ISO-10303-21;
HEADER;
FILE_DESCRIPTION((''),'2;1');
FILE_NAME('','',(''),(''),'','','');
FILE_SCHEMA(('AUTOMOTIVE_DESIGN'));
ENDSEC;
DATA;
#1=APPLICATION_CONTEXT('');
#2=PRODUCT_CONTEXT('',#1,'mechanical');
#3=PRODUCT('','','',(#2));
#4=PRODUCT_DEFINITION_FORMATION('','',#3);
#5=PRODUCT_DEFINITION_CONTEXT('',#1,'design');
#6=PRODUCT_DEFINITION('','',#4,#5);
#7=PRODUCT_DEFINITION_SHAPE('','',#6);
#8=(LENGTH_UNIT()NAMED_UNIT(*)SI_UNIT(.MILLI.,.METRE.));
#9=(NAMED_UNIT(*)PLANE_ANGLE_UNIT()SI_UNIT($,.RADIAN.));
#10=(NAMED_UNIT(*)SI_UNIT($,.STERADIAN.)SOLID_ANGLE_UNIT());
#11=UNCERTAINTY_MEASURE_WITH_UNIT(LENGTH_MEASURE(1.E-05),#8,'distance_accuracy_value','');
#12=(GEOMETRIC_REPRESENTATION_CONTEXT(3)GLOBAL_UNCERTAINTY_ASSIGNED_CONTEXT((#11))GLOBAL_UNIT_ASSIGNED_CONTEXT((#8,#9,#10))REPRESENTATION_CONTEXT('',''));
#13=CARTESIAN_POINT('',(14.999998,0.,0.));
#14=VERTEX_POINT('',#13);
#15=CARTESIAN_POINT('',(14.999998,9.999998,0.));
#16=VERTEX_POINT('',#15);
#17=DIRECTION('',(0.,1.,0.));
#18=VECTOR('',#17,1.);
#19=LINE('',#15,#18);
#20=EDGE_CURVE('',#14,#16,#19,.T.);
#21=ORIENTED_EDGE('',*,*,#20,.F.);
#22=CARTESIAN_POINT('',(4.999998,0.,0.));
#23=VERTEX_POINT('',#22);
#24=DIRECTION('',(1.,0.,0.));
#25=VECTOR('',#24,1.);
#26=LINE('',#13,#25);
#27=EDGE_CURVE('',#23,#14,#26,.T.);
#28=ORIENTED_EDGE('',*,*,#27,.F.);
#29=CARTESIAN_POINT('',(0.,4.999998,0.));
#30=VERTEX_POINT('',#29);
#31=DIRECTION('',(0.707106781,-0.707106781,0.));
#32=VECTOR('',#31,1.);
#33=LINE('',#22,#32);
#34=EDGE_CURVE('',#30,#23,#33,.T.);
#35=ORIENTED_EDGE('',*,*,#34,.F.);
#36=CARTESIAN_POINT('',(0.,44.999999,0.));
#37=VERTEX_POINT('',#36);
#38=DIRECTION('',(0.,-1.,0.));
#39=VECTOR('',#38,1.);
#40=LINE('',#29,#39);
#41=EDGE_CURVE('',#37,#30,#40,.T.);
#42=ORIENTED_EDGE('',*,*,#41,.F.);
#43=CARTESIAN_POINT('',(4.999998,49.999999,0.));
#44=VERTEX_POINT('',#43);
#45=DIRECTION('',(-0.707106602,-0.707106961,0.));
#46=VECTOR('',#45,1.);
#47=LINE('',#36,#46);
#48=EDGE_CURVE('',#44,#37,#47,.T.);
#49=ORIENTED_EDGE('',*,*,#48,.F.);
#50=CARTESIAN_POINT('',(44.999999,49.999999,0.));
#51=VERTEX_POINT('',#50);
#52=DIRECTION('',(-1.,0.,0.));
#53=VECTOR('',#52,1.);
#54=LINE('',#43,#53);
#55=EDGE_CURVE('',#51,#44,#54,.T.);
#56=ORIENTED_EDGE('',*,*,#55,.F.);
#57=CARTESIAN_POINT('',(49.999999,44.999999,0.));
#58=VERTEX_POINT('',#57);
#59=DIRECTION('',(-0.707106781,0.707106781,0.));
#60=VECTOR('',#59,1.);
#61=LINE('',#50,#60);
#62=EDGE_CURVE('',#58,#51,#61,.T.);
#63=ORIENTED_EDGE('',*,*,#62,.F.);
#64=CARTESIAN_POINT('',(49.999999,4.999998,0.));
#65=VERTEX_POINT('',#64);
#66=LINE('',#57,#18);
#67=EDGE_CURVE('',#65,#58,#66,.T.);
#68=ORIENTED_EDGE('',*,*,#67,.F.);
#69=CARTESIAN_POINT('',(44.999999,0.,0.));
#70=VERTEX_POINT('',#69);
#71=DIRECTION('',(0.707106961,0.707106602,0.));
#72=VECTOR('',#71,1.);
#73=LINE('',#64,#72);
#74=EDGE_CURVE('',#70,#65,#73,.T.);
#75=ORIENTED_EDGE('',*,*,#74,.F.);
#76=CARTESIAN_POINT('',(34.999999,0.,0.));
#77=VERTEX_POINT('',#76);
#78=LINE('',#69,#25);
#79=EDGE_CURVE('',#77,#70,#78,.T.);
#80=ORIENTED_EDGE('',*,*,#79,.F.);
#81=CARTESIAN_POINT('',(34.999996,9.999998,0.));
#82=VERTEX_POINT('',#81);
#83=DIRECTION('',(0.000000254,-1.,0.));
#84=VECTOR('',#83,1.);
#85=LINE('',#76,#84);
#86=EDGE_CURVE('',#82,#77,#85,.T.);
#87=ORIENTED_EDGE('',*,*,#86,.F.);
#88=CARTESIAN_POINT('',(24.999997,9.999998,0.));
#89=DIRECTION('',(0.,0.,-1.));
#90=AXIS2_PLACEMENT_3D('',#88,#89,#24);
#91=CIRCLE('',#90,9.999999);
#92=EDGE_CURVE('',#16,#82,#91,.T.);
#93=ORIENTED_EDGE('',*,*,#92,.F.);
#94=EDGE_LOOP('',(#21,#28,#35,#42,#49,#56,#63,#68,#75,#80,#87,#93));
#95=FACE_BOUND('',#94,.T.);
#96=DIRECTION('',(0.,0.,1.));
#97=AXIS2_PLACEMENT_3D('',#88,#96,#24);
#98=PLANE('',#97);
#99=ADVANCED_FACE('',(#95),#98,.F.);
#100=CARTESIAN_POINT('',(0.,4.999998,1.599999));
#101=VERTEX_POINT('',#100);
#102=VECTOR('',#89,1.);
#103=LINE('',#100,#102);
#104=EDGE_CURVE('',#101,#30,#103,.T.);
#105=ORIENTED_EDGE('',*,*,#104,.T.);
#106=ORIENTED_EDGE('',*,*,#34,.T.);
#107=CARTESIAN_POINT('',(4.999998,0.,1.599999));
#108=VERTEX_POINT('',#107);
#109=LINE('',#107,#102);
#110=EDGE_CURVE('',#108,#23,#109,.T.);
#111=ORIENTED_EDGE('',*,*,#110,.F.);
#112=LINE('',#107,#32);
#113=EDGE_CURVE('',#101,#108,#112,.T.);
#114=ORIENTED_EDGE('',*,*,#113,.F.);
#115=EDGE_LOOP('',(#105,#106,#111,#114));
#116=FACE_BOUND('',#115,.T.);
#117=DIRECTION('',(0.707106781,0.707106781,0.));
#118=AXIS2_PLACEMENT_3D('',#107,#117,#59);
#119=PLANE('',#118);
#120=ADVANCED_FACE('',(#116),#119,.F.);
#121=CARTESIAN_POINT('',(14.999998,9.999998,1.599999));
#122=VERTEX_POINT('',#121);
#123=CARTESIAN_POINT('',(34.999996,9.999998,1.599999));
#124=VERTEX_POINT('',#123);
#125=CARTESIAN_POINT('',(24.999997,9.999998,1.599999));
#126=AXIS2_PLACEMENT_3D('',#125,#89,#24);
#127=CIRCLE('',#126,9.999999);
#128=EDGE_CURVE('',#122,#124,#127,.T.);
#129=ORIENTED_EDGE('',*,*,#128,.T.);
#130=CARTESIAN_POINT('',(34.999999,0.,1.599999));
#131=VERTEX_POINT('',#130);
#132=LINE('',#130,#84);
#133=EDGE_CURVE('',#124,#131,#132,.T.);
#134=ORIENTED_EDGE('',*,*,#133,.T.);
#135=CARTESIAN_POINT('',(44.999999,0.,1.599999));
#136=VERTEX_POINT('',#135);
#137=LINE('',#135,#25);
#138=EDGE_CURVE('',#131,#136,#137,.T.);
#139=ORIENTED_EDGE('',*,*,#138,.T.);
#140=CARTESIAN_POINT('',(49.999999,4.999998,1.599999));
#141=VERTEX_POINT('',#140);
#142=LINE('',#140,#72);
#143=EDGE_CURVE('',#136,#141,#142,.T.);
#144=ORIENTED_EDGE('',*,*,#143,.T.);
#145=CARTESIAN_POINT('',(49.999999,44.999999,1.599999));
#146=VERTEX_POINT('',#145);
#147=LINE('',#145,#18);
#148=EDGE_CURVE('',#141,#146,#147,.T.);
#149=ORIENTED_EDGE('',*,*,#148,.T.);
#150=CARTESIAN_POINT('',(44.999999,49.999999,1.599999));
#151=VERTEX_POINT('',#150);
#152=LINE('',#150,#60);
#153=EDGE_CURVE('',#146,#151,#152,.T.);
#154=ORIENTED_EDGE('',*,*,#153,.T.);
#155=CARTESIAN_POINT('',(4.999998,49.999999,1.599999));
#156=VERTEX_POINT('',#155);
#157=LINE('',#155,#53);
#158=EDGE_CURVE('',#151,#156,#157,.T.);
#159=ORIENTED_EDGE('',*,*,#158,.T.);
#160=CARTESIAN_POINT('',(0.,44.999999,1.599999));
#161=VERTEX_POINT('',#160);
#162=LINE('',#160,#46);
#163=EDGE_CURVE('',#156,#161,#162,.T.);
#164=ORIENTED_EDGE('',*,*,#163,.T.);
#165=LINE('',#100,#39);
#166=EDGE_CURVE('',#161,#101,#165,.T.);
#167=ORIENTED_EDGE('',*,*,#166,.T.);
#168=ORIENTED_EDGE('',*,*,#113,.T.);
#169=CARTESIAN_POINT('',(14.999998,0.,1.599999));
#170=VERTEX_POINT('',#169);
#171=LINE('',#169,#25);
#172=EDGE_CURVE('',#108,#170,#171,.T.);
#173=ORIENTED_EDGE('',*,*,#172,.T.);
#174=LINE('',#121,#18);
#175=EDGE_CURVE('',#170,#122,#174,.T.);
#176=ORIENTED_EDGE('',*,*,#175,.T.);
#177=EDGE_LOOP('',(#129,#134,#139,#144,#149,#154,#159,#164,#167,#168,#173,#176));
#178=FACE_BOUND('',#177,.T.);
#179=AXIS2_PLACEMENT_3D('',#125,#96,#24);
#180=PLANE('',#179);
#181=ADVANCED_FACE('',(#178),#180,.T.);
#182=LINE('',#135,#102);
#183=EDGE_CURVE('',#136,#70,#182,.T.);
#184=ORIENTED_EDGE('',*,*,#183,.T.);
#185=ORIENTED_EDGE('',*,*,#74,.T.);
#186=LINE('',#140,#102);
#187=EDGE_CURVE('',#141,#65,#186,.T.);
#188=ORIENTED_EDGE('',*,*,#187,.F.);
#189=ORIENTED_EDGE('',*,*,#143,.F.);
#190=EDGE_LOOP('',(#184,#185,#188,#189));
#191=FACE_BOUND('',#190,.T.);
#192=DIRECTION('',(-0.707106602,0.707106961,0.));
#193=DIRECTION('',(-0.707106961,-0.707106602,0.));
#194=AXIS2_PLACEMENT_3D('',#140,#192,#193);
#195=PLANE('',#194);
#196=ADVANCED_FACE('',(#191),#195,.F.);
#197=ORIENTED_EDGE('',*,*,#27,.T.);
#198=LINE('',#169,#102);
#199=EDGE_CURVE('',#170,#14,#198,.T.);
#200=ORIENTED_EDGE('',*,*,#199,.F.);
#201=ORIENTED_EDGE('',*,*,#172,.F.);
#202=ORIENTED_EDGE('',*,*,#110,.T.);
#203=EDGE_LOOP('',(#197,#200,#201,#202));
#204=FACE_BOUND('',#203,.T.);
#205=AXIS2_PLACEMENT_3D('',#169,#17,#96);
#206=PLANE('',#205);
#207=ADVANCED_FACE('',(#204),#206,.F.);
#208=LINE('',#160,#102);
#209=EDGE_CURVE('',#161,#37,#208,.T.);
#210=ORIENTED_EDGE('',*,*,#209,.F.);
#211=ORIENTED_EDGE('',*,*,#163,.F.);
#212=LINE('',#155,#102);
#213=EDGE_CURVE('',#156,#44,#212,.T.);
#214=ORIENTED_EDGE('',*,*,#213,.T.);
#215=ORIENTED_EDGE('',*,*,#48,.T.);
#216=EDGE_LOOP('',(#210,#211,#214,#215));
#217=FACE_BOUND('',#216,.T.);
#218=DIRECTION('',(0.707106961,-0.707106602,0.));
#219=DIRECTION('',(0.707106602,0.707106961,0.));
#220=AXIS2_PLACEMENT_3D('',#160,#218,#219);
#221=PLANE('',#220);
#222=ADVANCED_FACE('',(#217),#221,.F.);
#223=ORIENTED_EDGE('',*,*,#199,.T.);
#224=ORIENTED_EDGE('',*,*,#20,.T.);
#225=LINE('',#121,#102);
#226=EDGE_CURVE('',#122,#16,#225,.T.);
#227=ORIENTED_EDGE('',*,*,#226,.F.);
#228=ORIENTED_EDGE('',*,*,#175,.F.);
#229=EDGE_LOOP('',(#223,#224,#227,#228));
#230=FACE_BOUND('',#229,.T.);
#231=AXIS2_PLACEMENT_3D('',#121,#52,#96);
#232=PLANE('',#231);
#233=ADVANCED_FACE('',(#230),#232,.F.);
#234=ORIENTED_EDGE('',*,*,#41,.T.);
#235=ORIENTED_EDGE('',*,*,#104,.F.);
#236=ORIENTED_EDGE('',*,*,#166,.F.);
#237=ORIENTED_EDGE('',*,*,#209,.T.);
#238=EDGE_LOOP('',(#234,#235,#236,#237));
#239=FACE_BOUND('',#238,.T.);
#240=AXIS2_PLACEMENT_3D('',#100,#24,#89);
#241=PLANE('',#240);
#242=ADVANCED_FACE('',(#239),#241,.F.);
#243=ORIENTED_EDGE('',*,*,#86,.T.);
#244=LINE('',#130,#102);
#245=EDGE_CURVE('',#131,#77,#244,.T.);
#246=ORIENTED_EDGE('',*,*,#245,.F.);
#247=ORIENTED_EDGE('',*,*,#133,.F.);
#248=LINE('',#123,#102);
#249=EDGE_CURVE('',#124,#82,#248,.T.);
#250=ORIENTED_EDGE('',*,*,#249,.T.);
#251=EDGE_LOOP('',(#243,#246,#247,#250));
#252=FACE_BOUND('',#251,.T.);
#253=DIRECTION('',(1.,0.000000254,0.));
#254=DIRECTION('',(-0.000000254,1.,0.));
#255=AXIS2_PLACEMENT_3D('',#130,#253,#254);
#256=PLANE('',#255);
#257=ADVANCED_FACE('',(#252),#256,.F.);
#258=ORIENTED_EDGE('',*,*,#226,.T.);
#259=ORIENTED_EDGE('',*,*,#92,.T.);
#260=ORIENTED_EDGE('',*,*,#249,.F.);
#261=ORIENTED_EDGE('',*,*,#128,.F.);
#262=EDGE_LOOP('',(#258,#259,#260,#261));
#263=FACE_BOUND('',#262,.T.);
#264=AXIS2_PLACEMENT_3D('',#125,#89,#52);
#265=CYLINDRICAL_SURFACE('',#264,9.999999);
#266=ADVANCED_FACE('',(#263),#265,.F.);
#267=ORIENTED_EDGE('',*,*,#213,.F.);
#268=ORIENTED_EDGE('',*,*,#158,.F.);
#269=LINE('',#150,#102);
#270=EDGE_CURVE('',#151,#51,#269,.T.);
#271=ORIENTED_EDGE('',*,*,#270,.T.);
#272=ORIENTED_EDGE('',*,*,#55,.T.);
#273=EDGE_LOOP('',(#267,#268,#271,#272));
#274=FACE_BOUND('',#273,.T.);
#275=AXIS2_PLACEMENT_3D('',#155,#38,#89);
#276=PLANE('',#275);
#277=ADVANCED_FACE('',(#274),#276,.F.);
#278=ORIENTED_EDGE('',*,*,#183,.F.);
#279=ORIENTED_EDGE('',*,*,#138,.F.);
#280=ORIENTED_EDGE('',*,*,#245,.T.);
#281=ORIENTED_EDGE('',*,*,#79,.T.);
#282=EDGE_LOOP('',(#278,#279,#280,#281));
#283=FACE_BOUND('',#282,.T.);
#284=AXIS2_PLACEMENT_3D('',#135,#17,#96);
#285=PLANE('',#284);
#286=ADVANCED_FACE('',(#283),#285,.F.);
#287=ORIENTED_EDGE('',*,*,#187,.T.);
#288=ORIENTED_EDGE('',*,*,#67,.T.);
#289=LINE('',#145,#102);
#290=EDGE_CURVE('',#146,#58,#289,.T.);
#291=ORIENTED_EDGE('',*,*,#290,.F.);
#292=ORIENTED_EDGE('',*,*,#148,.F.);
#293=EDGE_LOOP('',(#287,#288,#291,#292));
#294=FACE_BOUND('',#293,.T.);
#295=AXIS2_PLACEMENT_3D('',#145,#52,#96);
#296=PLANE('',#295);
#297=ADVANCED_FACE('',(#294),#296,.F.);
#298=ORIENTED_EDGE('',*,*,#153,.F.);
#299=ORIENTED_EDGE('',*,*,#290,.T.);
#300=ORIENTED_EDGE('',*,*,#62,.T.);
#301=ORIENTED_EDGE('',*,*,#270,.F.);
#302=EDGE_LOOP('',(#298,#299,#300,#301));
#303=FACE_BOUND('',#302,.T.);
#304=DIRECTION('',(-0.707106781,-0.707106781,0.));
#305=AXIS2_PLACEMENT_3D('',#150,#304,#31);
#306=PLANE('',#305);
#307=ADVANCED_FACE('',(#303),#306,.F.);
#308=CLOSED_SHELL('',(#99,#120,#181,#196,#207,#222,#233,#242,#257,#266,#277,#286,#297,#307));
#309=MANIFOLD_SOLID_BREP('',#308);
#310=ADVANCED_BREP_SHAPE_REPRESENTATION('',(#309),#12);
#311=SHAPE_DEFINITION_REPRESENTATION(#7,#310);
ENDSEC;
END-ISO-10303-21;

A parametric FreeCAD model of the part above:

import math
import FreeCAD as App
import Part
import Sketcher

doc = App.newDocument("Part")
body = doc.addObject("PartDesign::Body", "Body")

# Sketch on XY plane
sketch1 = body.newObject("Sketcher::SketchObject", "Sketch")
sketch1.AttachmentSupport = (doc.getObject("XY_Plane"), [""])
sketch1.MapMode = "FlatFace"
sketch1.addGeometry(Part.LineSegment(App.Vector(15, 0, 0), App.Vector(15, 10, 0)), False)
sketch1.addGeometry(Part.ArcOfCircle(Part.Circle(App.Vector(25, 10, 0), App.Vector(0, 0, 1), 10), math.radians(0), math.radians(180)), False)
sketch1.addGeometry(Part.LineSegment(App.Vector(35, 10, 0), App.Vector(35, 0, 0)), False)
sketch1.addGeometry(Part.LineSegment(App.Vector(35, 0, 0), App.Vector(45, 0, 0)), False)
sketch1.addGeometry(Part.LineSegment(App.Vector(45, 0, 0), App.Vector(50, 5, 0)), False)
sketch1.addGeometry(Part.LineSegment(App.Vector(50, 5, 0), App.Vector(50, 45, 0)), False)
sketch1.addGeometry(Part.LineSegment(App.Vector(50, 45, 0), App.Vector(45, 50, 0)), False)
sketch1.addGeometry(Part.LineSegment(App.Vector(45, 50, 0), App.Vector(5, 50, 0)), False)
sketch1.addGeometry(Part.LineSegment(App.Vector(5, 50, 0), App.Vector(0, 45, 0)), False)
sketch1.addGeometry(Part.LineSegment(App.Vector(0, 45, 0), App.Vector(0, 5, 0)), False)
sketch1.addGeometry(Part.LineSegment(App.Vector(0, 5, 0), App.Vector(5, 0, 0)), False)
sketch1.addGeometry(Part.LineSegment(App.Vector(5, 0, 0), App.Vector(15, 0, 0)), False)
sketch1.addConstraint(Sketcher.Constraint("Tangent", 0, 2, 1, 2))
sketch1.addConstraint(Sketcher.Constraint("Tangent", 1, 1, 2, 1))
sketch1.addConstraint(Sketcher.Constraint("Coincident", 2, 2, 3, 1))
sketch1.addConstraint(Sketcher.Constraint("Coincident", 3, 2, 4, 1))
sketch1.addConstraint(Sketcher.Constraint("Coincident", 4, 2, 5, 1))
sketch1.addConstraint(Sketcher.Constraint("Coincident", 5, 2, 6, 1))
sketch1.addConstraint(Sketcher.Constraint("Coincident", 6, 2, 7, 1))
sketch1.addConstraint(Sketcher.Constraint("Coincident", 7, 2, 8, 1))
sketch1.addConstraint(Sketcher.Constraint("Coincident", 8, 2, 9, 1))
sketch1.addConstraint(Sketcher.Constraint("Coincident", 9, 2, 10, 1))
sketch1.addConstraint(Sketcher.Constraint("Coincident", 10, 2, 11, 1))
sketch1.addConstraint(Sketcher.Constraint("Coincident", 11, 2, 0, 1))
sketch1.addConstraint(Sketcher.Constraint("Vertical", 0))
sketch1.addConstraint(Sketcher.Constraint("Horizontal", 3))
sketch1.addConstraint(Sketcher.Constraint("Vertical", 5))
sketch1.addConstraint(Sketcher.Constraint("Horizontal", 7))
sketch1.addConstraint(Sketcher.Constraint("Vertical", 9))
sketch1.addConstraint(Sketcher.Constraint("Horizontal", 11))
sketch1.addConstraint(Sketcher.Constraint("PointOnObject", 2, 2, -1))
sketch1.addConstraint(Sketcher.Constraint("PointOnObject", 8, 2, -2))
sketch1.addConstraint(Sketcher.Constraint("PointOnObject", 10, 2, -1))
sketch1.addConstraint(Sketcher.Constraint("Perpendicular", 4, 6))
sketch1.addConstraint(Sketcher.Constraint("Perpendicular", 6, 8))
sketch1.addConstraint(Sketcher.Constraint("Perpendicular", 8, 10))
sketch1.addConstraint(Sketcher.Constraint("Horizontal", 0, 2, 1, 1))
sketch1.addConstraint(Sketcher.Constraint("Horizontal", 5, 2, 8, 2))
sketch1.addConstraint(Sketcher.Constraint("Horizontal", 4, 2, 9, 2))
sketch1.addConstraint(Sketcher.Constraint("Vertical", 3, 2, 6, 2))
sketch1.addConstraint(Sketcher.Constraint("Vertical", 7, 2, 10, 2))
sketch1.addConstraint(Sketcher.Constraint("Equal", 3, 11))
sketch1.addConstraint(Sketcher.Constraint("Equal", 7, 5))
sketch1.addConstraint(Sketcher.Constraint("Radius", 1, 9.999999))
sketch1.addConstraint(Sketcher.Constraint("DistanceX", 3, 1, 3, 2, 10.0))
sketch1.addConstraint(Sketcher.Constraint("DistanceX", -1, 1, 2, 2, 34.999999))
sketch1.addConstraint(Sketcher.Constraint("DistanceY", 4, 2, 1, 1, 5.0))
pad1 = body.newObject("PartDesign::Pad", "Pad")
pad1.Profile = sketch1
pad1.Length = 1.599999

doc.recompute()
